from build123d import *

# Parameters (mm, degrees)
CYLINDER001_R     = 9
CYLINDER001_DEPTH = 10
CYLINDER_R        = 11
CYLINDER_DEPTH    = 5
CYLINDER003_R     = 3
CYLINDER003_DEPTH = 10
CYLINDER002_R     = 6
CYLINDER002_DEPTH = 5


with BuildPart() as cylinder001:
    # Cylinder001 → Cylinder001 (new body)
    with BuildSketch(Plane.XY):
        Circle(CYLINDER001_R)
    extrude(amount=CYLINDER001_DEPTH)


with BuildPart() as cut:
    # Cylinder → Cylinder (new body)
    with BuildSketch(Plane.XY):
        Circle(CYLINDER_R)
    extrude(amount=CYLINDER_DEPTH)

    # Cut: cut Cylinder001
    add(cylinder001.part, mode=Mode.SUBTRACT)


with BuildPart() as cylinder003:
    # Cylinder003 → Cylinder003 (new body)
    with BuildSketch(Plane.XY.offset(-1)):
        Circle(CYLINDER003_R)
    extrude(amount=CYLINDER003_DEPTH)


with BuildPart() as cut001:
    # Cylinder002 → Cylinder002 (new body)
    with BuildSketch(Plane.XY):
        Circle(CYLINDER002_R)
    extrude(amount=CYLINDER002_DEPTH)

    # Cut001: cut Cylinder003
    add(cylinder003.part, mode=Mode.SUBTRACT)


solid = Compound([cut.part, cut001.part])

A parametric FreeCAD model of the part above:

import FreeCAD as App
import Part
import Sketcher
Q = App.Units.Quantity

doc = App.newDocument("Part")
body = doc.addObject("PartDesign::Body", "Body")

# Sketch on XY plane
sketch1 = body.newObject("Sketcher::SketchObject", "Sketch")
sketch1.AttachmentSupport = (doc.getObject("XY_Plane"), [""])
sketch1.MapMode = "FlatFace"
sketch1.addGeometry(Part.Circle(App.Vector(0, 0, 0), App.Vector(0, 0, 1), 9), False)
sketch1.addConstraint([
    Sketcher.Constraint("Coincident", 0, 3, -1, 1),
    Sketcher.Constraint("Diameter", 0, Q("18 mm")),
])
pad1 = body.newObject("PartDesign::Pad", "Pad")
pad1.Profile = sketch1
pad1.Length = 10
body2 = doc.addObject("PartDesign::Body", "Body001")

# Sketch on XY plane
sketch2 = body2.newObject("Sketcher::SketchObject", "Sketch001")
sketch2.AttachmentSupport = (doc.getObject("XY_Plane001"), [""])
sketch2.MapMode = "FlatFace"
sketch2.addGeometry(Part.Circle(App.Vector(0, 0, 0), App.Vector(0, 0, 1), 11), False)
sketch2.addConstraint([
    Sketcher.Constraint("Coincident", 0, 3, -1, 1),
    Sketcher.Constraint("Diameter", 0, Q("22 mm")),
])
pad2 = body2.newObject("PartDesign::Pad", "Pad001")
pad2.Profile = sketch2
pad2.Length = 5
doc.recompute()

boolean = body2.newObject("PartDesign::Boolean", "Boolean")
boolean.Type = "Cut"
boolean.addObjects([body])
body3 = doc.addObject("PartDesign::Body", "Body002")

# Sketch on XY plane
sketch3 = body3.newObject("Sketcher::SketchObject", "Sketch002")
sketch3.AttachmentSupport = (doc.getObject("XY_Plane002"), [""])
sketch3.MapMode = "FlatFace"
sketch3.AttachmentOffset = App.Placement(App.Vector(0, 0, -1), App.Rotation())
sketch3.addGeometry(Part.Circle(App.Vector(0, 0, 0), App.Vector(0, 0, 1), 3), False)
sketch3.addConstraint([
    Sketcher.Constraint("Coincident", 0, 3, -1, 1),
    Sketcher.Constraint("Diameter", 0, Q("6 mm")),
])
pad3 = body3.newObject("PartDesign::Pad", "Pad002")
pad3.Profile = sketch3
pad3.Length = 10
body4 = doc.addObject("PartDesign::Body", "Body003")

# Sketch on XY plane
sketch4 = body4.newObject("Sketcher::SketchObject", "Sketch003")
sketch4.AttachmentSupport = (doc.getObject("XY_Plane003"), [""])
sketch4.MapMode = "FlatFace"
sketch4.addGeometry(Part.Circle(App.Vector(0, 0, 0), App.Vector(0, 0, 1), 6), False)
sketch4.addConstraint([
    Sketcher.Constraint("Coincident", 0, 3, -1, 1),
    Sketcher.Constraint("Diameter", 0, Q("12 mm")),
])
pad4 = body4.newObject("PartDesign::Pad", "Pad003")
pad4.Profile = sketch4
pad4.Length = 5
doc.recompute()

boolean2 = body4.newObject("PartDesign::Boolean", "Boolean001")
boolean2.Type = "Cut"
boolean2.addObjects([body3])

doc.recompute()
